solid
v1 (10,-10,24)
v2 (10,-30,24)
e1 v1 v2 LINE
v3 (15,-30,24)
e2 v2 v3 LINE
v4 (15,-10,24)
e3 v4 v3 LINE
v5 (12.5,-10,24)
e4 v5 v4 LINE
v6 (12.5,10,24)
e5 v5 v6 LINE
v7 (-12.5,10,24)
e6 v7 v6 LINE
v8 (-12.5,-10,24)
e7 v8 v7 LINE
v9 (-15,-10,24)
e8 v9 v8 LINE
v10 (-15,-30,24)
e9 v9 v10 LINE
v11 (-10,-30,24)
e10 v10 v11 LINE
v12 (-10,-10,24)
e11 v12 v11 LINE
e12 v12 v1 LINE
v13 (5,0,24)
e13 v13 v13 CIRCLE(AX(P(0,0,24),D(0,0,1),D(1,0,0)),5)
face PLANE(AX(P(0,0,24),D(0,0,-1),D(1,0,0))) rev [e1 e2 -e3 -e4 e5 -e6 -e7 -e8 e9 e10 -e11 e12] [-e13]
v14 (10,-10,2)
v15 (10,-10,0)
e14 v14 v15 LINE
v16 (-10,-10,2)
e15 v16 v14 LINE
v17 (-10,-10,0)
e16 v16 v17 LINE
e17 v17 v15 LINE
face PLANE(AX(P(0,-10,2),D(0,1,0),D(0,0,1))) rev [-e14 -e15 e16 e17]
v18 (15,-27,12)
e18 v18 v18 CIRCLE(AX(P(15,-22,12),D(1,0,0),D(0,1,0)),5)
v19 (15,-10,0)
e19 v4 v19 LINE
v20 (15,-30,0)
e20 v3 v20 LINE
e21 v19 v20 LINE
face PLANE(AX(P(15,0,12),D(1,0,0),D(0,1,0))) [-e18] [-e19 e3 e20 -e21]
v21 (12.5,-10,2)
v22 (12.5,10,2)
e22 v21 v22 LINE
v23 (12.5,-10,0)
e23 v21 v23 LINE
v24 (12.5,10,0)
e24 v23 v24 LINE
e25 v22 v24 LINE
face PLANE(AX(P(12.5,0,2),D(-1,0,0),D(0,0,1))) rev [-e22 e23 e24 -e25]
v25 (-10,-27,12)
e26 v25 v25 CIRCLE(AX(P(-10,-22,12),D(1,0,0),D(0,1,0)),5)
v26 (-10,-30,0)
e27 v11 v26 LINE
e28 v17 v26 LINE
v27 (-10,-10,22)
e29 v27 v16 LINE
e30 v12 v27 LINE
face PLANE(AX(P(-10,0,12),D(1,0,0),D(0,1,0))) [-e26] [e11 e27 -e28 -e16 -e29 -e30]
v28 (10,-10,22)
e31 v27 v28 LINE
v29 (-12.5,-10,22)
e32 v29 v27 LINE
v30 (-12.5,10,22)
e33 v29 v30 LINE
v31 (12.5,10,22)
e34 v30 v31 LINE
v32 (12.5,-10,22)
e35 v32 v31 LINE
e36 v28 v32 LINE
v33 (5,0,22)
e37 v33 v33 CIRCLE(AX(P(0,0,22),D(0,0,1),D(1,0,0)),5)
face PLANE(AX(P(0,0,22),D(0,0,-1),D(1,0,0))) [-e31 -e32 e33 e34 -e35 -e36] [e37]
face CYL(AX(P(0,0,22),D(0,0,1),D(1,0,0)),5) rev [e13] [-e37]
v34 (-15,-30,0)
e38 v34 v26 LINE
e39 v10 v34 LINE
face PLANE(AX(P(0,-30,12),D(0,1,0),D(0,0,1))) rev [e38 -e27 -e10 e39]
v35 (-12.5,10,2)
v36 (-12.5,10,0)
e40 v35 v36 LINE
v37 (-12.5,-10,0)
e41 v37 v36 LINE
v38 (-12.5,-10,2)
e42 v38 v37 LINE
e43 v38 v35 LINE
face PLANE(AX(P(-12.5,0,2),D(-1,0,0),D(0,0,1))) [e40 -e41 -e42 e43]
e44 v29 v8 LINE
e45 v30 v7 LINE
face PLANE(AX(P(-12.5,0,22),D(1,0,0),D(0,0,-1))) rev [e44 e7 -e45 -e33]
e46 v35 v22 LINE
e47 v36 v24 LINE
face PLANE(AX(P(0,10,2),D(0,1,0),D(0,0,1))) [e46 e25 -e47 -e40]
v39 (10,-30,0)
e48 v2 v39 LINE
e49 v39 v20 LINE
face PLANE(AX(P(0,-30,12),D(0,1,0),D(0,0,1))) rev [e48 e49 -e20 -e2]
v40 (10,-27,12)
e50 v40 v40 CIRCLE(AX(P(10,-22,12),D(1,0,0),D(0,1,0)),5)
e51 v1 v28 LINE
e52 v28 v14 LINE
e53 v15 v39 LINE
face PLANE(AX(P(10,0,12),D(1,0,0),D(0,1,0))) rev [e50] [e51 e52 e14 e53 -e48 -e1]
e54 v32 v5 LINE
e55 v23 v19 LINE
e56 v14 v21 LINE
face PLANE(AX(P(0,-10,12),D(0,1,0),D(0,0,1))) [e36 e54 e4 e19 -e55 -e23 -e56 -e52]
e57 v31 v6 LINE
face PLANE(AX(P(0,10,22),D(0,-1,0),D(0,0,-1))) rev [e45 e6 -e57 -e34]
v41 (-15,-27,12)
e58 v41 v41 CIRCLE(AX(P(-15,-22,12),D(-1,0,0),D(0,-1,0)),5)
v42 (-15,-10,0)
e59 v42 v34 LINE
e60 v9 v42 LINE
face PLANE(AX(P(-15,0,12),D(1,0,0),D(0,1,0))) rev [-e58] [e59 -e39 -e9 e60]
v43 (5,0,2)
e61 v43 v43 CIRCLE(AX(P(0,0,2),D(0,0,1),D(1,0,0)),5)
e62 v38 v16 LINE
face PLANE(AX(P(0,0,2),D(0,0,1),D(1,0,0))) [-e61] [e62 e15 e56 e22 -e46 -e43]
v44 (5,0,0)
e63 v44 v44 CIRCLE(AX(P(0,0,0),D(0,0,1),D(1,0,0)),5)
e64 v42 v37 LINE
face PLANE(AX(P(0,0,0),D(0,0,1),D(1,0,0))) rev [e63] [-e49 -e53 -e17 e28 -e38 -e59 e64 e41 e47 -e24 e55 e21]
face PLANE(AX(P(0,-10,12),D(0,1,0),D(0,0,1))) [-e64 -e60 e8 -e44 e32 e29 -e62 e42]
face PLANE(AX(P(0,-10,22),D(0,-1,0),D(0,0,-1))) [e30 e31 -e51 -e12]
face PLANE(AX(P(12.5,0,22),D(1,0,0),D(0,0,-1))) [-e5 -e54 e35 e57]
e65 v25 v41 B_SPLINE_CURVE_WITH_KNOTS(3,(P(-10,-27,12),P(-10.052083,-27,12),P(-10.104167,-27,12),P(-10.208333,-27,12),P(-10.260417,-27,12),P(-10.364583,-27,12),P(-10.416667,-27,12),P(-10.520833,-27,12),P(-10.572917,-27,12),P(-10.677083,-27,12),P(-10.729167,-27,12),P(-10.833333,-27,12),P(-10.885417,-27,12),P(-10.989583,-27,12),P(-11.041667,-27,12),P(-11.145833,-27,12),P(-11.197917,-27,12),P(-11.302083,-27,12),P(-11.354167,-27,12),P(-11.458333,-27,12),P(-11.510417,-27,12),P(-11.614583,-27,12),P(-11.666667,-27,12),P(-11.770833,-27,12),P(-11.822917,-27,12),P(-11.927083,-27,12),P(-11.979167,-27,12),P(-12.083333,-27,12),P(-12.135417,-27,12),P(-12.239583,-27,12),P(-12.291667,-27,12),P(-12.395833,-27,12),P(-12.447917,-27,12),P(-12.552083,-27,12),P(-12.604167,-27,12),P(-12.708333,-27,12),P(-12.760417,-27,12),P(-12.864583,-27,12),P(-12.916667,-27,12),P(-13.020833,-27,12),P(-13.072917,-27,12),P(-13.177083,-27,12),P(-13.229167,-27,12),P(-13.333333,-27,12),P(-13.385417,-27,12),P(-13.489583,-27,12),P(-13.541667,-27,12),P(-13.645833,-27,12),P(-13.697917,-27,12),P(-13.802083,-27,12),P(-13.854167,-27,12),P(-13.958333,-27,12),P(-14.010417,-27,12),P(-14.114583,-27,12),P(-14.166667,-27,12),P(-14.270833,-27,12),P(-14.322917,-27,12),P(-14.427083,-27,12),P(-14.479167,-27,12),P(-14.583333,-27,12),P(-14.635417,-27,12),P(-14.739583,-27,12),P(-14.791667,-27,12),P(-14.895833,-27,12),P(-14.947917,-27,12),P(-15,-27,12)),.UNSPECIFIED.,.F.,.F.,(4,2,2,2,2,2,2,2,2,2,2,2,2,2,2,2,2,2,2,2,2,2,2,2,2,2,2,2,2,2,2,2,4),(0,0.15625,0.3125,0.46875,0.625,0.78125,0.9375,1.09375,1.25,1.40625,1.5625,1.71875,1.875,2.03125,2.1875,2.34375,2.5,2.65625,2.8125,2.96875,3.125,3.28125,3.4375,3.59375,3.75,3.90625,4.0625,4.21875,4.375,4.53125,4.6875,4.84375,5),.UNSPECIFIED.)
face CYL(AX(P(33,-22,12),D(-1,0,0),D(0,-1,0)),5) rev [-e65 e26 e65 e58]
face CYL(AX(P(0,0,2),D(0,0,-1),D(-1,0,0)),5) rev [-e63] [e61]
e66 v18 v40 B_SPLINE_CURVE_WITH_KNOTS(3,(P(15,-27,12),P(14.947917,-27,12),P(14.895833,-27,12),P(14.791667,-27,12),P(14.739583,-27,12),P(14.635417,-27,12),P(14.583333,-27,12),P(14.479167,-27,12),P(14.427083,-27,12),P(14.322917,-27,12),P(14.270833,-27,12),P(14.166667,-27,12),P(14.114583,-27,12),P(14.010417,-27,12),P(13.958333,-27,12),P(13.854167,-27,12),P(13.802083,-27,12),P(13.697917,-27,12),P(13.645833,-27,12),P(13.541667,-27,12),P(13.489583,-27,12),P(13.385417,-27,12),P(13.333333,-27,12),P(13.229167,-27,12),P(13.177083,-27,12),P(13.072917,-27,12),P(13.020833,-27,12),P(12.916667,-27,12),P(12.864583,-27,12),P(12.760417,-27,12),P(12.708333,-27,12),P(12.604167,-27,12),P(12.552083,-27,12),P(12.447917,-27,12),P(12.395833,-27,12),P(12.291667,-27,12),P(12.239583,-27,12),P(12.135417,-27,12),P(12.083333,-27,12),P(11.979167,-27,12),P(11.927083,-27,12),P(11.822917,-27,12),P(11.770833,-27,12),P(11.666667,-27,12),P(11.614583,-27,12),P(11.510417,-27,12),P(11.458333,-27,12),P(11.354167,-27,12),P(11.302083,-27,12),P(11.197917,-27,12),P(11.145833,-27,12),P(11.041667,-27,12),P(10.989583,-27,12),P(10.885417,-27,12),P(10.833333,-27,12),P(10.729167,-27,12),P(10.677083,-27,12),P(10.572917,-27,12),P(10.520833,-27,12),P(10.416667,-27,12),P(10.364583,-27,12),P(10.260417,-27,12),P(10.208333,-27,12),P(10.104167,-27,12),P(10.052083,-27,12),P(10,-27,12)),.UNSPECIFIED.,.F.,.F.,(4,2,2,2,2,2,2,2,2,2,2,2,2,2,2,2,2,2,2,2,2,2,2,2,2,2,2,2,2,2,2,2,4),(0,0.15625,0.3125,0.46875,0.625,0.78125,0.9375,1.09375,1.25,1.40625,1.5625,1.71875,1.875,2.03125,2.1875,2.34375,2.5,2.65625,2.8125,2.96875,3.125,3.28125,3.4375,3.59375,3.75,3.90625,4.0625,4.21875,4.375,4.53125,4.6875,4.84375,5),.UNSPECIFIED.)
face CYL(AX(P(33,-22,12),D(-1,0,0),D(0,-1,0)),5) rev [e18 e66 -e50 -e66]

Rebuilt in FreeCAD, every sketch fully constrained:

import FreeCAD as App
import Part
import Sketcher
from FreeCAD import Vector
Q = App.Units.Quantity


def add_polygon(sketch, points):
    """Adds a closed chain of lines whose ends are joined by coincident constraints."""
    first, n = sketch.GeometryCount, len(points)
    for a, b in zip(points, points[1:] + points[:1]):
        sketch.addGeometry(Part.LineSegment(App.Vector(*a, 0), App.Vector(*b, 0)), False)
    for i in range(n):
        sketch.addConstraint(Sketcher.Constraint("Coincident", first + i, 2, first + (i + 1) % n, 1))

doc = App.newDocument("Part")
body = doc.addObject("PartDesign::Body", "Body")

# Sketch on XY plane
sketch1 = body.newObject("Sketcher::SketchObject", "Sketch")
sketch1.AttachmentSupport = (doc.getObject("XY_Plane"), [""])
sketch1.MapMode = "FlatFace"
add_polygon(sketch1, [(12, -10), (12, 10), (-12, 10), (-12, -10)])  # lines 0-3
sketch1.addGeometry(Part.Circle(Vector(0, 0, 0), Vector(0, 0, 1), 5), False)  # 4
sketch1.addConstraint([
    Sketcher.Constraint("Vertical", 0),
    Sketcher.Constraint("Horizontal", 1),
    Sketcher.Constraint("Vertical", 2),
    Sketcher.Constraint("Horizontal", 3),
    Sketcher.Constraint("Coincident", 4, 3, -1, 1),
    Sketcher.Constraint("Symmetric", 0, 2, 2, 2, -1, 1),
    Sketcher.Constraint("Diameter", 4, Q("10 mm")),
    Sketcher.Constraint("DistanceX", 1, 2, 1, 1, Q("25 mm")),
    Sketcher.Constraint("DistanceY", 0, 1, 0, 2, Q("20 mm")),
])
pad1 = body.newObject("PartDesign::Pad", "Pad")
pad1.Profile = sketch1
pad1.Length = 2

# Sketch on XY plane
sketch2 = body.newObject("Sketcher::SketchObject", "Sketch001")
sketch2.AttachmentSupport = (doc.getObject("XY_Plane"), [""])
sketch2.MapMode = "FlatFace"
add_polygon(sketch2, [(10, -10), (10, -30), (15, -30), (15, -10)])  # lines 0-3
add_polygon(sketch2, [(-10, -30), (-10, -10), (-15, -10), (-15, -30)])  # lines 4-7
sketch2.addConstraint([
    Sketcher.Constraint("Vertical", 0),
    Sketcher.Constraint("Horizontal", 1),
    Sketcher.Constraint("Vertical", 2),
    Sketcher.Constraint("Horizontal", 3),
    Sketcher.Constraint("Vertical", 4),
    Sketcher.Constraint("Horizontal", 5),
    Sketcher.Constraint("Vertical", 6),
    Sketcher.Constraint("Horizontal", 7),
    Sketcher.Constraint("Symmetric", 3, 2, 4, 2, -2),
    Sketcher.Constraint("Symmetric", 1, 2, 6, 2, -2),
    Sketcher.Constraint("DistanceX", 1, 1, 1, 2, Q("5 mm")),
    Sketcher.Constraint("DistanceY", 0, 2, 0, 1, Q("20 mm")),
    Sketcher.Constraint("DistanceX", -1, 1, 0, 2, Q("10 mm")),
    Sketcher.Constraint("DistanceY", 0, 2, -1, 1, Q("30 mm")),
])
pad2 = body.newObject("PartDesign::Pad", "Pad001")
pad2.Profile = sketch2
pad2.Length = 12
doc.recompute()

datumplane = body.newObject("PartDesign::Plane", "DatumPlane")
datumplane.AttachmentSupport = (doc.getObject("XY_Plane"), [""])
datumplane.MapMode = "FlatFace"
datumplane.AttachmentOffset = App.Placement(Vector(0, 0, 12), App.Rotation())
mirrored = body.newObject("PartDesign::Mirrored", "Mirrored")
mirrored.Originals = [pad2]
mirrored.MirrorPlane = (datumplane, [""])
body.Tip = mirrored
doc.recompute()

datumplane2 = body.newObject("PartDesign::Plane", "DatumPlane001")
datumplane2.AttachmentSupport = (doc.getObject("XY_Plane"), [""])
datumplane2.MapMode = "FlatFace"
datumplane2.AttachmentOffset = App.Placement(Vector(0, 0, 12), App.Rotation())
mirrored2 = body.newObject("PartDesign::Mirrored", "Mirrored001")
mirrored2.Originals = [pad1]
mirrored2.MirrorPlane = (datumplane2, [""])
body.Tip = mirrored2

# Sketch on YZ plane
sketch3 = body.newObject("Sketcher::SketchObject", "Sketch002")
sketch3.AttachmentSupport = (doc.getObject("YZ_Plane"), [""])
sketch3.MapMode = "FlatFace"
sketch3.AttachmentOffset = App.Placement(Vector(0, 0, -15), App.Rotation())
sketch3.addGeometry(Part.Circle(Vector(-22, 12, 0), Vector(0, 0, 1), 5), False)
sketch3.addConstraint([
    Sketcher.Constraint("Diameter", 0, Q("10 mm")),
    Sketcher.Constraint("DistanceX", 0, 3, -1, 1, Q("22 mm")),
    Sketcher.Constraint("DistanceY", -1, 1, 0, 3, Q("12 mm")),
])
pocket1 = body.newObject("PartDesign::Pocket", "Pocket")
pocket1.Profile = sketch3
pocket1.Length = 48
pocket1.Reversed = True

doc.recompute()
